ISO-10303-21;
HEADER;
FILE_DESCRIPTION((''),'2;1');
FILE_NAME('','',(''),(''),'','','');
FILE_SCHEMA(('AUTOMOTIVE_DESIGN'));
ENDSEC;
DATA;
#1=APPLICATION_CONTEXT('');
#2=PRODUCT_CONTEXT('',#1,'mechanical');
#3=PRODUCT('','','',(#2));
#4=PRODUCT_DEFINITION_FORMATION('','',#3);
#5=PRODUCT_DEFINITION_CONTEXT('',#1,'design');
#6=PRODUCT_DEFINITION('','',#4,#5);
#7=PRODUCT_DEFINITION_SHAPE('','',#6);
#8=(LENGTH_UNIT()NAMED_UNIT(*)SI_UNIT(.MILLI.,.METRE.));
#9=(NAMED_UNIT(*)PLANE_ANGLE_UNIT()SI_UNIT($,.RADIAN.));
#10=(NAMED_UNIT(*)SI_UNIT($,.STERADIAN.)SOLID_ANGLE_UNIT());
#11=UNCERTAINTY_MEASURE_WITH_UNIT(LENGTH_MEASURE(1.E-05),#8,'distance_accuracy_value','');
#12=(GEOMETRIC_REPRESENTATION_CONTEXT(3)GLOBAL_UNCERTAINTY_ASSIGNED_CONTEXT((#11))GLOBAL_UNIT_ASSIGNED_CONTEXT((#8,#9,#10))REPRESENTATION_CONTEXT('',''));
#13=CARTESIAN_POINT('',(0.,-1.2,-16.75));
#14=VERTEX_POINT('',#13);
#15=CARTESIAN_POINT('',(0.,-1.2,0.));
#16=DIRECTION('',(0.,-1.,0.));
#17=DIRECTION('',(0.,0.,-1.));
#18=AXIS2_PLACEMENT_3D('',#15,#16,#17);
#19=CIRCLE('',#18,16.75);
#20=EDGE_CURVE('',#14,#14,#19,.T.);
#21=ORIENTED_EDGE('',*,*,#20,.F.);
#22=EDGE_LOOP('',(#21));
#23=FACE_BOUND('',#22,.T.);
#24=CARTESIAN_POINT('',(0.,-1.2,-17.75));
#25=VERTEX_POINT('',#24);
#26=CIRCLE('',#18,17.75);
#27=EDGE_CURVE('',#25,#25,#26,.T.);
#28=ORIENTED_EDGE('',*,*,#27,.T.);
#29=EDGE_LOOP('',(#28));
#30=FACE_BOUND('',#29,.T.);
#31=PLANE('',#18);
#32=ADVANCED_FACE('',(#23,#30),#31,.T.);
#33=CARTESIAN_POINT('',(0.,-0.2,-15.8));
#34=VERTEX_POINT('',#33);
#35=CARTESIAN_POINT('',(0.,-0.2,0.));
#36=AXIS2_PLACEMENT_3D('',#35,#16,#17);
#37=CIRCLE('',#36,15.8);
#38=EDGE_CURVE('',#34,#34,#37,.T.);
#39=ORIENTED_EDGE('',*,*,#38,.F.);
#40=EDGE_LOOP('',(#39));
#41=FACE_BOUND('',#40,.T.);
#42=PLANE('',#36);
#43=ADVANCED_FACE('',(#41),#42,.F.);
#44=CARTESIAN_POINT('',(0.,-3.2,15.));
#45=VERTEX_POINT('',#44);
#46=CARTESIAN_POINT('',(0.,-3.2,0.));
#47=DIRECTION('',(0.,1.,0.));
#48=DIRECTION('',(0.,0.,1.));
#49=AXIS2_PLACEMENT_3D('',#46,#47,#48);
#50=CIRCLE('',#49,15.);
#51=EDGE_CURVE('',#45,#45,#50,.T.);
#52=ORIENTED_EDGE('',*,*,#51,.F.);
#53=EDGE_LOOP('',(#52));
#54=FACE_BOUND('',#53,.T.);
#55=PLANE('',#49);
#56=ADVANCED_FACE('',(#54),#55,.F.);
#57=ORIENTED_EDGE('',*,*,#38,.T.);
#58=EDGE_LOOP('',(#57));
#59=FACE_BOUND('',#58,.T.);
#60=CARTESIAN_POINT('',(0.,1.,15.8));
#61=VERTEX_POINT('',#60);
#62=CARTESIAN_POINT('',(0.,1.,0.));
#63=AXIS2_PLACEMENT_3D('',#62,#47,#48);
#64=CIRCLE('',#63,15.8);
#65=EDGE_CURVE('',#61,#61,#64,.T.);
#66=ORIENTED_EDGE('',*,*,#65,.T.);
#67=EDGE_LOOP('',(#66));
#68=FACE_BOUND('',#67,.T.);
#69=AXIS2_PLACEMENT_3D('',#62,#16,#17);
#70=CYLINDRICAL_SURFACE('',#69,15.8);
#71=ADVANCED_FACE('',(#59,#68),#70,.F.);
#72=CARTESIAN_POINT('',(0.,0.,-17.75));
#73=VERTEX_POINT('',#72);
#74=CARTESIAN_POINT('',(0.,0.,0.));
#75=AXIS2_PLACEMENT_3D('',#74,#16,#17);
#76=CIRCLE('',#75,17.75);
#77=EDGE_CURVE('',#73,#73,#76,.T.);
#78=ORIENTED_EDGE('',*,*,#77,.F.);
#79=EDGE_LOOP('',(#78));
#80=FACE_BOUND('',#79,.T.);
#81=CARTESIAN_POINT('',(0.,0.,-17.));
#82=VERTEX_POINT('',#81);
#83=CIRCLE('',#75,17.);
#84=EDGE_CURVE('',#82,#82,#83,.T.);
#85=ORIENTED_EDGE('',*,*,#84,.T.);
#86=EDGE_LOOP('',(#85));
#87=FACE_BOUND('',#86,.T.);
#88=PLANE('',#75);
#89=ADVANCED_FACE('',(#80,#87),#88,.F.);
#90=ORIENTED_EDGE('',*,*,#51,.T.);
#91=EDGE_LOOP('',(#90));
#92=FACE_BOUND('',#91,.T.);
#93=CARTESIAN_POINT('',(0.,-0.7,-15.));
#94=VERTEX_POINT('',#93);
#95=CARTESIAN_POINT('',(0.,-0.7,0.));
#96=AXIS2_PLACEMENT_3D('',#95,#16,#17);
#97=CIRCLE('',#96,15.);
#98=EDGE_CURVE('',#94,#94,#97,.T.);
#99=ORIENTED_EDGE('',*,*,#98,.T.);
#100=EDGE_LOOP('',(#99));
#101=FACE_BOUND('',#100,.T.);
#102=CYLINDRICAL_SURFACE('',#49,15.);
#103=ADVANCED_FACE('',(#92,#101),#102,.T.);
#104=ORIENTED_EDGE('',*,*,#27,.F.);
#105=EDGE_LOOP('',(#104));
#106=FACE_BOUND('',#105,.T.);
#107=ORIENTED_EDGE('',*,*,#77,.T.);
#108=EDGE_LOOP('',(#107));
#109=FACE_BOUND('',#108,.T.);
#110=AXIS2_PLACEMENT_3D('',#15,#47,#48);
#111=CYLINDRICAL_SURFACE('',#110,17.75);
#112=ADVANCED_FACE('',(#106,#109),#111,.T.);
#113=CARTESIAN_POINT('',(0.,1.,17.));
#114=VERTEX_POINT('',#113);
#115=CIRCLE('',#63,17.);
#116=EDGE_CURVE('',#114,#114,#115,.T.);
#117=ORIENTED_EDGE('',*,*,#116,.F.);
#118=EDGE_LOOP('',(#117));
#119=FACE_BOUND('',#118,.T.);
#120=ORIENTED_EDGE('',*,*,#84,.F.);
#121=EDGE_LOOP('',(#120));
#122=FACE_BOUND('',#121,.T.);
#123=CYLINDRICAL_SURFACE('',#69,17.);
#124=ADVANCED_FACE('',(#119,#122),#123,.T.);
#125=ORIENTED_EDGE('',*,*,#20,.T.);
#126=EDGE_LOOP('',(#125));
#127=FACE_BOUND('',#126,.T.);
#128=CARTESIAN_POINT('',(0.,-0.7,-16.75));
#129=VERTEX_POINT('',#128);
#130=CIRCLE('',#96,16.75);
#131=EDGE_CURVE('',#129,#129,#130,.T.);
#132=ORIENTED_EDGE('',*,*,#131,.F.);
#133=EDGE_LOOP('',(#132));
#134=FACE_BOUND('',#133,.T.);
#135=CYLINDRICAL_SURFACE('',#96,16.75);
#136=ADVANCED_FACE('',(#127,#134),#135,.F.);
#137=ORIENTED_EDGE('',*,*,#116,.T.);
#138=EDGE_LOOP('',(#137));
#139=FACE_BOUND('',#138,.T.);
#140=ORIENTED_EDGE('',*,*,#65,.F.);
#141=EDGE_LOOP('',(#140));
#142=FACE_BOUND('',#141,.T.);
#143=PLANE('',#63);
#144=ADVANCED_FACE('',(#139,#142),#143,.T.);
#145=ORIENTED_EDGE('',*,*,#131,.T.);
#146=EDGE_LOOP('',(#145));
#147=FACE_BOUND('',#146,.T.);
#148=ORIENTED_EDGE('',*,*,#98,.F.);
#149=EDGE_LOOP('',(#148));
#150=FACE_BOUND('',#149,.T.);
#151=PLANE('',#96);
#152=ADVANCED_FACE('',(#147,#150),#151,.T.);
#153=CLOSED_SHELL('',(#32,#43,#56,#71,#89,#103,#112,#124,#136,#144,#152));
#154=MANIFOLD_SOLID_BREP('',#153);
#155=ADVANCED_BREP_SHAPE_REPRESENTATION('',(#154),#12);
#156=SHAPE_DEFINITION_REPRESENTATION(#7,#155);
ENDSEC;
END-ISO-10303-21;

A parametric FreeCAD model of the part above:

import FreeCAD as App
import Part
import Sketcher
from FreeCAD import Vector

doc = App.newDocument("Part")
params = doc.addObject("Spreadsheet::Sheet", "Params")
for row, (alias, value) in enumerate([
    ("sketch1_diameter", "34 mm"),
    ("sketch1_diameter2", "31.6 mm"),
    ("pad1_length", "1 mm"),
    ("sketch2_diameter", "35.5 mm"),
    ("sketch2_diameter2", "31.6 mm"),
    ("pad2_length", "1.2 mm"),
    ("sketch3_diameter", "33.5 mm"),
    ("sketch3_diameter2", "31.6 mm"),
    ("pocket1_length", "0.5 mm"),
    ("sketch4_diameter", "30 mm"),
    ("sketch4_diameter2", "31.6 mm"),
    ("pad3_length", "0.5 mm"),
    ("sketch5_diameter", "30 mm"),
    ("pad4_length", "3 mm"),
], start=1):
    params.set(f"A{row}", alias)
    params.set(f"B{row}", "=" + value)
    params.setAlias(f"B{row}", alias)

body = doc.addObject("PartDesign::Body", "Body")

# Sketch on XZ plane
sketch1 = doc.addObject("Sketcher::SketchObject", "Sketch")
body.addObject(sketch1)
sketch1.AttachmentSupport = (doc.XZ_Plane, [""])
sketch1.MapMode = "FlatFace"
sketch1.addGeometry(Part.Circle(Vector(0, 0, 0), Vector(0, 0, 1), 17), False)
sketch1.addGeometry(Part.Circle(Vector(0, 0, 0), Vector(0, 0, 1), 16), False)
sketch1.addConstraint(Sketcher.Constraint("Coincident", 0, 3, -1, 1))
sketch1.addConstraint(Sketcher.Constraint("Coincident", 1, 3, -1, 1))
sketch1.addConstraint(Sketcher.Constraint("Diameter", 0, 34.0))
sketch1.addConstraint(Sketcher.Constraint("Diameter", 1, 31.6))
sketch1.setExpression("Constraints[2]", "Params.sketch1_diameter")
sketch1.setExpression("Constraints[3]", "Params.sketch1_diameter2")
pad1 = doc.addObject("PartDesign::Pad", "Pad")
body.addObject(pad1)
pad1.Profile = sketch1
pad1.setExpression("Length", "Params.pad1_length")
pad1.Reversed = True

# Sketch on XZ plane
sketch2 = doc.addObject("Sketcher::SketchObject", "Sketch001")
body.addObject(sketch2)
sketch2.AttachmentSupport = (doc.XZ_Plane, [""])
sketch2.MapMode = "FlatFace"
sketch2.AttachmentOffset = App.Placement(Vector(0, 0, 1.2), App.Rotation())
sketch2.addGeometry(Part.Circle(Vector(0, 0, 0), Vector(0, 0, 1), 18), False)
sketch2.addGeometry(Part.Circle(Vector(0, 0, 0), Vector(0, 0, 1), 16), False)
sketch2.addConstraint(Sketcher.Constraint("Coincident", 0, 3, -1, 1))
sketch2.addConstraint(Sketcher.Constraint("Coincident", 1, 3, -1, 1))
sketch2.addConstraint(Sketcher.Constraint("Diameter", 0, 35.5))
sketch2.addConstraint(Sketcher.Constraint("Diameter", 1, 31.6))
sketch2.setExpression("Constraints[2]", "Params.sketch2_diameter")
sketch2.setExpression("Constraints[3]", "Params.sketch2_diameter2")
pad2 = doc.addObject("PartDesign::Pad", "Pad001")
body.addObject(pad2)
pad2.Profile = sketch2
pad2.setExpression("Length", "Params.pad2_length")
pad2.Reversed = True

# Sketch on XZ plane
sketch3 = doc.addObject("Sketcher::SketchObject", "Sketch002")
body.addObject(sketch3)
sketch3.AttachmentSupport = (doc.XZ_Plane, [""])
sketch3.MapMode = "FlatFace"
sketch3.AttachmentOffset = App.Placement(Vector(0, 0, 1.2), App.Rotation())
sketch3.addGeometry(Part.Circle(Vector(0, 0, 0), Vector(0, 0, 1), 17), False)
sketch3.addGeometry(Part.Circle(Vector(0, 0, 0), Vector(0, 0, 1), 16), False)
sketch3.addConstraint(Sketcher.Constraint("Coincident", 0, 3, -1, 1))
sketch3.addConstraint(Sketcher.Constraint("Coincident", 1, 3, -1, 1))
sketch3.addConstraint(Sketcher.Constraint("Diameter", 0, 33.5))
sketch3.addConstraint(Sketcher.Constraint("Diameter", 1, 31.6))
sketch3.setExpression("Constraints[2]", "Params.sketch3_diameter")
sketch3.setExpression("Constraints[3]", "Params.sketch3_diameter2")
pocket1 = doc.addObject("PartDesign::Pocket", "Pocket")
body.addObject(pocket1)
pocket1.Profile = sketch3
pocket1.setExpression("Length", "Params.pocket1_length")
body2 = doc.addObject("PartDesign::Body", "Body001")

# Sketch on XZ plane
sketch4 = doc.addObject("Sketcher::SketchObject", "Sketch003")
body2.addObject(sketch4)
sketch4.AttachmentSupport = (doc.getObject("XZ_Plane001"), [""])
sketch4.MapMode = "FlatFace"
sketch4.AttachmentOffset = App.Placement(Vector(0, 0, 0.7), App.Rotation())
sketch4.addGeometry(Part.Circle(Vector(0, 0, 0), Vector(0, 0, 1), 16), False)
sketch4.addGeometry(Part.Circle(Vector(0, 0, 0), Vector(0, 0, 1), 15), False)
sketch4.addConstraint(Sketcher.Constraint("Coincident", 0, 3, -1, 1))
sketch4.addConstraint(Sketcher.Constraint("Coincident", 1, 3, -1, 1))
sketch4.addConstraint(Sketcher.Constraint("Diameter", 1, 30.0))
sketch4.addConstraint(Sketcher.Constraint("Diameter", 0, 31.6))
sketch4.setExpression("Constraints[2]", "Params.sketch4_diameter")
sketch4.setExpression("Constraints[3]", "Params.sketch4_diameter2")
pad3 = doc.addObject("PartDesign::Pad", "Pad002")
body2.addObject(pad3)
pad3.Profile = sketch4
pad3.setExpression("Length", "Params.pad3_length")
pad3.Reversed = True
doc.recompute()

boolean = doc.addObject("PartDesign::Boolean", "Boolean")
body.addObject(boolean)
boolean.Type = "Fuse"
boolean.addObjects([body2])

# Sketch on XZ plane
sketch5 = doc.addObject("Sketcher::SketchObject", "Sketch004")
body.addObject(sketch5)
sketch5.AttachmentSupport = (doc.XZ_Plane, [""])
sketch5.MapMode = "FlatFace"
sketch5.AttachmentOffset = App.Placement(Vector(0, 0, 0.2), App.Rotation())
sketch5.addGeometry(Part.Circle(Vector(0, 0, 0), Vector(0, 0, 1), 15), False)
sketch5.addConstraint(Sketcher.Constraint("Coincident", 0, 3, -1, 1))
sketch5.addConstraint(Sketcher.Constraint("Diameter", 0, 30.0))
sketch5.setExpression("Constraints[1]", "Params.sketch5_diameter")
pad4 = doc.addObject("PartDesign::Pad", "Pad003")
body.addObject(pad4)
pad4.Profile = sketch5
pad4.setExpression("Length", "Params.pad4_length")

doc.recompute()
